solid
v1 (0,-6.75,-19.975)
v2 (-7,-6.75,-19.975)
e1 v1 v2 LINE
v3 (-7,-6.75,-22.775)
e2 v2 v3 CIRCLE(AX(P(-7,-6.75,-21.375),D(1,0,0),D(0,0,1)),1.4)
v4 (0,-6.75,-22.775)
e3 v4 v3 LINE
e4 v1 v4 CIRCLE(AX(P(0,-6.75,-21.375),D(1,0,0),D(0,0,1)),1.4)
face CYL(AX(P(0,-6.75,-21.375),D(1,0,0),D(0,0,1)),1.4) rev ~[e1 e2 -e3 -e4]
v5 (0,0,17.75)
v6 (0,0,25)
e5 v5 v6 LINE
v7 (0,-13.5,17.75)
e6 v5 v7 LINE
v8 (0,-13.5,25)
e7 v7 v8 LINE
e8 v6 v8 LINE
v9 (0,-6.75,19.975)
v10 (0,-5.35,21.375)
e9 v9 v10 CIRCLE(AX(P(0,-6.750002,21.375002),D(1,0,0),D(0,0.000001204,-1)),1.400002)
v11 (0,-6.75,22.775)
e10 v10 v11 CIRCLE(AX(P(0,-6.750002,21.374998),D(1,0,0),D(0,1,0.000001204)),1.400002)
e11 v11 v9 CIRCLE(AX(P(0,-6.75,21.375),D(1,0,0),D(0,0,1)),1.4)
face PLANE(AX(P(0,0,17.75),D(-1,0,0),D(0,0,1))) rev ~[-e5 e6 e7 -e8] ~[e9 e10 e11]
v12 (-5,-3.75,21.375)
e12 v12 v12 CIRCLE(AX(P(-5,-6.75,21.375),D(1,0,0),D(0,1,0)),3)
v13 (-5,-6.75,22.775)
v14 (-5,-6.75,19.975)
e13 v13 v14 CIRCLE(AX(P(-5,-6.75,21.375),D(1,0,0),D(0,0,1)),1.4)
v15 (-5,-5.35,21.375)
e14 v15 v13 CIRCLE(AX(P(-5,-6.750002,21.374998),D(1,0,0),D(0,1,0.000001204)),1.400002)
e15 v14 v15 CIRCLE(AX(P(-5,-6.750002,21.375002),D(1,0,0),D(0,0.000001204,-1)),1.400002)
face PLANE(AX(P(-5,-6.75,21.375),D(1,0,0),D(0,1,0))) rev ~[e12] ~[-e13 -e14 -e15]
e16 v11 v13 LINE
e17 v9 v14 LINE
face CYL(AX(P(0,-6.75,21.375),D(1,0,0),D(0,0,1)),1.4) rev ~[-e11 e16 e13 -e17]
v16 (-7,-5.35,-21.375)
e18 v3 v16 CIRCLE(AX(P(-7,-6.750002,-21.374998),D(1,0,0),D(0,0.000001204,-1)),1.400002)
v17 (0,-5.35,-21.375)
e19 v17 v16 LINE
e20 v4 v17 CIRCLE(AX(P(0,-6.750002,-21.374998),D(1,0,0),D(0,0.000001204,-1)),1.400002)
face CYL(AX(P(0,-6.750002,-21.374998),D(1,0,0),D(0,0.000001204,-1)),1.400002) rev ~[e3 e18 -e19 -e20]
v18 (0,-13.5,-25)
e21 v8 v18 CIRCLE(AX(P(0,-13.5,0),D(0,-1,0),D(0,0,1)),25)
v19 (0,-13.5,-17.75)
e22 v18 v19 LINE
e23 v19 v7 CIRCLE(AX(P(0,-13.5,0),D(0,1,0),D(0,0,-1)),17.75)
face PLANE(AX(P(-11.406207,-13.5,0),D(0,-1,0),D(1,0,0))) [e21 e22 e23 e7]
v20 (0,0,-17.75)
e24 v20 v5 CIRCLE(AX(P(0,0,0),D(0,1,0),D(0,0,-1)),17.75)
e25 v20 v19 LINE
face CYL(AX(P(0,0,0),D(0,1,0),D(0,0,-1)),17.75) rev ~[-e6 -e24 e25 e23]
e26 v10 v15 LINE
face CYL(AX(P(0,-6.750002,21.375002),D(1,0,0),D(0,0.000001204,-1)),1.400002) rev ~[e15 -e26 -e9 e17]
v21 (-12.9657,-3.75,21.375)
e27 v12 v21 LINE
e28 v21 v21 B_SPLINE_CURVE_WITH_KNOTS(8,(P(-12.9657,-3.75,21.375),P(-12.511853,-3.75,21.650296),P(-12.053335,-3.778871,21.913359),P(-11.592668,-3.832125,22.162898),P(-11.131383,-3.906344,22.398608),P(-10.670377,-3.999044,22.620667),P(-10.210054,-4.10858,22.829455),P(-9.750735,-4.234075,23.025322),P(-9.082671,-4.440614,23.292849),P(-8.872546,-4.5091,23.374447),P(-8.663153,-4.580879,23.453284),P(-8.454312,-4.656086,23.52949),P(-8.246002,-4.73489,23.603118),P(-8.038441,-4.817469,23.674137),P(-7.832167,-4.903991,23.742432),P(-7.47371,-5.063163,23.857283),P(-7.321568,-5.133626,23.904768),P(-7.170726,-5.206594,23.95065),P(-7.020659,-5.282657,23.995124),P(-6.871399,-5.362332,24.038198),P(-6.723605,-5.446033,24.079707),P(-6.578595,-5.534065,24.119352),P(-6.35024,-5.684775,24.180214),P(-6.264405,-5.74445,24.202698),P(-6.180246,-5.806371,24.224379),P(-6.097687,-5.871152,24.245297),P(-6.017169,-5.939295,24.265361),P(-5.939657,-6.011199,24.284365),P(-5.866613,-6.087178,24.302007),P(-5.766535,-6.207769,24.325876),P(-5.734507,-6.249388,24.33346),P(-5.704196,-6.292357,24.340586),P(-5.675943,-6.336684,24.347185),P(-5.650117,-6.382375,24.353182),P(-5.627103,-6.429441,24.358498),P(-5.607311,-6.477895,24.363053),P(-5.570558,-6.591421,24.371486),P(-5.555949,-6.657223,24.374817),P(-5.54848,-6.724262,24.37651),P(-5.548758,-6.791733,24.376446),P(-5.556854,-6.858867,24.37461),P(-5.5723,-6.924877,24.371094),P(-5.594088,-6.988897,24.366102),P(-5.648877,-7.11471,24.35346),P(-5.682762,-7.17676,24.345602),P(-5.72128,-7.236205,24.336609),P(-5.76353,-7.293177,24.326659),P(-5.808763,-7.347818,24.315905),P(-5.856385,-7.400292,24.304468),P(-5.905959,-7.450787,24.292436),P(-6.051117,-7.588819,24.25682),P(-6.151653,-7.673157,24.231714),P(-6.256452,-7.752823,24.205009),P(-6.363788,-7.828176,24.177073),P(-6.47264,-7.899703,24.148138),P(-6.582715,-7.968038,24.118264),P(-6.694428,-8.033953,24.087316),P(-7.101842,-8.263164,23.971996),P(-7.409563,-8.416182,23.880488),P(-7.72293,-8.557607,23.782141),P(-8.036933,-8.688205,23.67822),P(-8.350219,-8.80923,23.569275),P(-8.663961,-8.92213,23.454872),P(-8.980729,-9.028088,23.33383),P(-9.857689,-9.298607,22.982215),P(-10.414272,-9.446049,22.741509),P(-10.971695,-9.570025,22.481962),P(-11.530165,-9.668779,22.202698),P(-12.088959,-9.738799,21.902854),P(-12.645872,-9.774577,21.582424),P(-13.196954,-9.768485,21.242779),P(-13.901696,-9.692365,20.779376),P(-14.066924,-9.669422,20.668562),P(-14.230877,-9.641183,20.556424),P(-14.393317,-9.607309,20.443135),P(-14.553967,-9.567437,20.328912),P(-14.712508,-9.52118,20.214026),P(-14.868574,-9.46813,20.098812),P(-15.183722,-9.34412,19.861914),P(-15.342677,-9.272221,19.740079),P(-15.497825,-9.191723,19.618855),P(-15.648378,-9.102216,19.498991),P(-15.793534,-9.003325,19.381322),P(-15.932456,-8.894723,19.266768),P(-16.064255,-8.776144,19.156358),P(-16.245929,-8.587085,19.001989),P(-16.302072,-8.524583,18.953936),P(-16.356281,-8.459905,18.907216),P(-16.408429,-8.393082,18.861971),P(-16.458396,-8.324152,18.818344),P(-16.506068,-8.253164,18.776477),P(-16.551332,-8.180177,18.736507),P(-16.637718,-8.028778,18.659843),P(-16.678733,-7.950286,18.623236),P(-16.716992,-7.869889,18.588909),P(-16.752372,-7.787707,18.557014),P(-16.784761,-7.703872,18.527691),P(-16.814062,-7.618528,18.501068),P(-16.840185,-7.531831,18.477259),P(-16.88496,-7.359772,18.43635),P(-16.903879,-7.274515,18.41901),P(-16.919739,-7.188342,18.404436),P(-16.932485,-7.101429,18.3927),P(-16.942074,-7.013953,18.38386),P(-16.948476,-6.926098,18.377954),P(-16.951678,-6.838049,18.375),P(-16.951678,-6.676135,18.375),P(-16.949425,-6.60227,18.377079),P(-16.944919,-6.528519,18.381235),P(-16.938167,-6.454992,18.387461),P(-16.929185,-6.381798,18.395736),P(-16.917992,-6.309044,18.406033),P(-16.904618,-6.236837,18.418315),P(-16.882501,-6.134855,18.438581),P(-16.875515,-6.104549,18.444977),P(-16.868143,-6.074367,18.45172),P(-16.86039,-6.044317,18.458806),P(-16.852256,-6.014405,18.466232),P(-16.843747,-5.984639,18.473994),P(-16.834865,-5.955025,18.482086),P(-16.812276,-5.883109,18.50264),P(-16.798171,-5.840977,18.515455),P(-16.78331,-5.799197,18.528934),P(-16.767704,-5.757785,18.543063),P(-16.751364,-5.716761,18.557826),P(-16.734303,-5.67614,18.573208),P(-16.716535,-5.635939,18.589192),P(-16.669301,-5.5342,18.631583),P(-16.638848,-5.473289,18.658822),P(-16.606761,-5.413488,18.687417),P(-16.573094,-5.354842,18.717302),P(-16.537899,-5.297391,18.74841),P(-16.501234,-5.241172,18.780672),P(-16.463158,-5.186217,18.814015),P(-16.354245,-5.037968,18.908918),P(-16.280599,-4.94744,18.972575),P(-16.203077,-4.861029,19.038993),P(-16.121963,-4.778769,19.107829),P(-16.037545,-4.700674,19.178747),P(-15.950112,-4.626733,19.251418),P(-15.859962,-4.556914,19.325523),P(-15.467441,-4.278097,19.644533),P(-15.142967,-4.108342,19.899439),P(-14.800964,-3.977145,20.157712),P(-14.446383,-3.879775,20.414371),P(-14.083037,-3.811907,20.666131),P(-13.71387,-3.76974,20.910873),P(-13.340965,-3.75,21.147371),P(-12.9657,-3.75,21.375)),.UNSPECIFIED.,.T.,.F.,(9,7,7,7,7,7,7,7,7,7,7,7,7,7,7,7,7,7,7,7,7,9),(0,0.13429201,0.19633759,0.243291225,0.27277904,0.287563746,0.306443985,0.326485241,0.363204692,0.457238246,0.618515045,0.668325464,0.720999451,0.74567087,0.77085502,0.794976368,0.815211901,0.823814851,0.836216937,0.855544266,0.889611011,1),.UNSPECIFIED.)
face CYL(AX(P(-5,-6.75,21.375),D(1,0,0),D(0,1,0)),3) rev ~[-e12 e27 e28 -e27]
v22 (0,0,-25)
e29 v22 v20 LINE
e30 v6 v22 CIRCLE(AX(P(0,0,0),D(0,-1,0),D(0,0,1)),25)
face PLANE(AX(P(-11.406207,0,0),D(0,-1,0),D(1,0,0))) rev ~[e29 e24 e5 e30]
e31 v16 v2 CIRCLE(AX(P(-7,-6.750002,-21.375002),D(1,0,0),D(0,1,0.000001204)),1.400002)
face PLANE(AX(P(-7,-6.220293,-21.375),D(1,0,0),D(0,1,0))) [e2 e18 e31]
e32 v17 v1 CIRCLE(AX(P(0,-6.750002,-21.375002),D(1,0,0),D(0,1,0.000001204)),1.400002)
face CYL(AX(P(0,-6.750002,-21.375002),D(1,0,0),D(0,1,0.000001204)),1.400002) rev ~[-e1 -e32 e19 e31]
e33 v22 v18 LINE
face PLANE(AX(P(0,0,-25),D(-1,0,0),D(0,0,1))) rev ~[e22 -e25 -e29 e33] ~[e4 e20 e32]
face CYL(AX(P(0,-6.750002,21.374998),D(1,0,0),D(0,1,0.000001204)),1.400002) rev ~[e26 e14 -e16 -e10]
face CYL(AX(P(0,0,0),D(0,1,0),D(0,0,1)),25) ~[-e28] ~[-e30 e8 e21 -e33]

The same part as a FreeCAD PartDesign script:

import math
import FreeCAD as App
import Part
import Sketcher

V = App.Vector

doc = App.newDocument("Part")
params = doc.addObject("Spreadsheet::Sheet", "Params")
for row, (alias, value) in enumerate([
    ("sketch1_radius", "25 mm"),
    ("sketch1_radius2", "17.75 mm"),
    ("pad1_length", "13.5 mm"),
    ("sketch2_radius", "1.400002 mm"),
    ("pocket1_length", "5 mm"),
    ("sketch3_diameter", "6 mm"),
    ("pocket2_length", "25 mm"),
    ("sketch4_radius", "1.400002 mm"),
    ("pocket3_length", "7 mm"),
], start=1):
    params.set(f"A{row}", alias)
    params.set(f"B{row}", "=" + value)
    params.setAlias(f"B{row}", alias)

body = doc.addObject("PartDesign::Body", "Body")

# Sketch on XZ plane
sketch1 = body.newObject("Sketcher::SketchObject", "Sketch")
sketch1.AttachmentSupport = (doc.getObject("XZ_Plane"), [""])
sketch1.MapMode = "FlatFace"
sketch1.addGeometry(Part.ArcOfCircle(Part.Circle(V(0, 0, 0), V(0, 0, 1), 17.75), math.radians(90), math.radians(270)), False)
sketch1.addGeometry(Part.LineSegment(V(0, 17.75, 0), V(0, 25, 0)), False)
sketch1.addGeometry(Part.ArcOfCircle(Part.Circle(V(0, 0, 0), V(0, 0, 1), 25), math.radians(90), math.radians(270)), False)
sketch1.addGeometry(Part.LineSegment(V(0, -25, 0), V(0, -17.75, 0)), False)
sketch1.addConstraint(Sketcher.Constraint("Coincident", 0, 1, 1, 1))
sketch1.addConstraint(Sketcher.Constraint("Coincident", 1, 2, 2, 1))
sketch1.addConstraint(Sketcher.Constraint("Coincident", 2, 2, 3, 1))
sketch1.addConstraint(Sketcher.Constraint("Coincident", 3, 2, 0, 2))
sketch1.addConstraint(Sketcher.Constraint("Vertical", 1))
sketch1.addConstraint(Sketcher.Constraint("Vertical", 3))
sketch1.addConstraint(Sketcher.Constraint("Coincident", 0, 3, -1, 1))
sketch1.addConstraint(Sketcher.Constraint("Coincident", 2, 3, -1, 1))
sketch1.addConstraint(Sketcher.Constraint("PointOnObject", 0, 1, -2))
sketch1.addConstraint(Sketcher.Constraint("PointOnObject", 2, 2, -2))
sketch1.addConstraint(Sketcher.Constraint("Radius", 2, 25.0))
sketch1.addConstraint(Sketcher.Constraint("Radius", 0, 17.75))
sketch1.setExpression("Constraints[10]", "Params.sketch1_radius")
sketch1.setExpression("Constraints[11]", "Params.sketch1_radius2")
pad1 = body.newObject("PartDesign::Pad", "Pad")
pad1.Profile = sketch1
pad1.setExpression("Length", "Params.pad1_length")

# Sketch on YZ plane
sketch2 = body.newObject("Sketcher::SketchObject", "Sketch001")
sketch2.AttachmentSupport = (doc.getObject("YZ_Plane"), [""])
sketch2.MapMode = "FlatFace"
sketch2.addGeometry(Part.ArcOfCircle(Part.Circle(V(-6.750002, 21.374998, 0), V(0, 0, 1), 1.400002), math.radians(0.000069), math.radians(89.999931)), False)
sketch2.addGeometry(Part.ArcOfCircle(Part.Circle(V(-6.75, 21.375, 0), V(0, 0, 1), 1.4), math.radians(90), math.radians(270)), False)
sketch2.addGeometry(Part.ArcOfCircle(Part.Circle(V(-6.750002, 21.375002, 0), V(0, 0, 1), 1.400002), math.radians(-89.999931), math.radians(-0.000069)), False)
sketch2.addConstraint(Sketcher.Constraint("Tangent", 0, 2, 1, 1))
sketch2.addConstraint(Sketcher.Constraint("Tangent", 1, 2, 2, 1))
sketch2.addConstraint(Sketcher.Constraint("Coincident", 2, 2, 0, 1))
sketch2.addConstraint(Sketcher.Constraint("Equal", 0, 1))
sketch2.addConstraint(Sketcher.Constraint("Horizontal", 1, 3, 2, 2))
sketch2.addConstraint(Sketcher.Constraint("Vertical", 2, 3, 0, 2))
sketch2.addConstraint(Sketcher.Constraint("Vertical", 0, 2, 1, 2))
sketch2.addConstraint(Sketcher.Constraint("Radius", 0, 1.400002))
sketch2.addConstraint(Sketcher.Constraint("DistanceX", 0, 3, -1, 1, 6.750002))
sketch2.addConstraint(Sketcher.Constraint("DistanceY", -1, 1, 0, 3, 21.374998))
sketch2.setExpression("Constraints[7]", "Params.sketch2_radius")
pocket1 = body.newObject("PartDesign::Pocket", "Pocket")
pocket1.Profile = sketch2
pocket1.setExpression("Length", "Params.pocket1_length")

# Sketch on YZ plane
sketch3 = body.newObject("Sketcher::SketchObject", "Sketch002")
sketch3.AttachmentSupport = (doc.getObject("YZ_Plane"), [""])
sketch3.MapMode = "FlatFace"
sketch3.AttachmentOffset = App.Placement(V(0, 0, -5), App.Rotation())
sketch3.addGeometry(Part.Circle(V(-6.75, 21.375, 0), V(0, 0, 1), 3), False)
sketch3.addConstraint(Sketcher.Constraint("Diameter", 0, 6.0))
sketch3.addConstraint(Sketcher.Constraint("DistanceX", 0, 3, -1, 1, 6.75))
sketch3.addConstraint(Sketcher.Constraint("DistanceY", -1, 1, 0, 3, 21.375))
sketch3.setExpression("Constraints[0]", "Params.sketch3_diameter")
pocket2 = body.newObject("PartDesign::Pocket", "Pocket001")
pocket2.Profile = sketch3
pocket2.setExpression("Length", "Params.pocket2_length")

# Sketch on YZ plane
sketch4 = body.newObject("Sketcher::SketchObject", "Sketch003")
sketch4.AttachmentSupport = (doc.getObject("YZ_Plane"), [""])
sketch4.MapMode = "FlatFace"
sketch4.addGeometry(Part.ArcOfCircle(Part.Circle(V(-6.750002, -21.375002, 0), V(0, 0, 1), 1.400002), math.radians(0.000069), math.radians(89.999931)), False)
sketch4.addGeometry(Part.ArcOfCircle(Part.Circle(V(-6.75, -21.375, 0), V(0, 0, 1), 1.4), math.radians(90), math.radians(270)), False)
sketch4.addGeometry(Part.ArcOfCircle(Part.Circle(V(-6.750002, -21.374998, 0), V(0, 0, 1), 1.400002), math.radians(-89.999931), math.radians(-0.000069)), False)
sketch4.addConstraint(Sketcher.Constraint("Tangent", 0, 2, 1, 1))
sketch4.addConstraint(Sketcher.Constraint("Tangent", 1, 2, 2, 1))
sketch4.addConstraint(Sketcher.Constraint("Coincident", 2, 2, 0, 1))
sketch4.addConstraint(Sketcher.Constraint("Equal", 0, 1))
sketch4.addConstraint(Sketcher.Constraint("Horizontal", 1, 3, 2, 2))
sketch4.addConstraint(Sketcher.Constraint("Vertical", 2, 3, 0, 2))
sketch4.addConstraint(Sketcher.Constraint("Vertical", 0, 2, 1, 2))
sketch4.addConstraint(Sketcher.Constraint("Radius", 0, 1.400002))
sketch4.addConstraint(Sketcher.Constraint("DistanceX", 0, 3, -1, 1, 6.750002))
sketch4.addConstraint(Sketcher.Constraint("DistanceY", 0, 3, -1, 1, 21.375002))
sketch4.setExpression("Constraints[7]", "Params.sketch4_radius")
pocket3 = body.newObject("PartDesign::Pocket", "Pocket002")
pocket3.Profile = sketch4
pocket3.setExpression("Length", "Params.pocket3_length")

doc.recompute()
